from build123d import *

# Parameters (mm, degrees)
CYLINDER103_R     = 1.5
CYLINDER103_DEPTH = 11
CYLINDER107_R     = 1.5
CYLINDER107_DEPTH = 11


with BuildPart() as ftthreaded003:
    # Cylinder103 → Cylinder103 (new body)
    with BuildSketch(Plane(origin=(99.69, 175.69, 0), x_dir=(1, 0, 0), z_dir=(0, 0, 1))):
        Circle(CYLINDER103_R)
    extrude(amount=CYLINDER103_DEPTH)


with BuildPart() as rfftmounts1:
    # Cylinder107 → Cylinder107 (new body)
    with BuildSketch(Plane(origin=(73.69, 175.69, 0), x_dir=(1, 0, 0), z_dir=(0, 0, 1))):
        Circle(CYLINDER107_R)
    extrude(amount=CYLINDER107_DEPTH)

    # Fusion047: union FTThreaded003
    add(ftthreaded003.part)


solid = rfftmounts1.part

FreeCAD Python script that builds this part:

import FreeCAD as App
import Part
import Sketcher

doc = App.newDocument("Part")
body = doc.addObject("PartDesign::Body", "Body")

# Sketch on XY plane
sketch1 = body.newObject("Sketcher::SketchObject", "Sketch")
sketch1.AttachmentSupport = (doc.getObject("XY_Plane"), [""])
sketch1.MapMode = "FlatFace"
sketch1.addGeometry(Part.Circle(App.Vector(99.7, 175.7, 0), App.Vector(0, 0, 1), 1.5), False)
sketch1.addConstraint(Sketcher.Constraint("Diameter", 0, 3.0))
sketch1.addConstraint(Sketcher.Constraint("DistanceX", -1, 1, 0, 3, 99.69))
sketch1.addConstraint(Sketcher.Constraint("DistanceY", -1, 1, 0, 3, 175.69))
pad1 = body.newObject("PartDesign::Pad", "Pad")
pad1.Profile = sketch1
pad1.Length = 11
body2 = doc.addObject("PartDesign::Body", "Body001")
body2.AllowCompound = True

# Sketch on XY plane
sketch2 = body2.newObject("Sketcher::SketchObject", "Sketch001")
sketch2.AttachmentSupport = (doc.getObject("XY_Plane001"), [""])
sketch2.MapMode = "FlatFace"
sketch2.addGeometry(Part.Circle(App.Vector(73.7, 175.7, 0), App.Vector(0, 0, 1), 1.5), False)
sketch2.addConstraint(Sketcher.Constraint("Diameter", 0, 3.0))
sketch2.addConstraint(Sketcher.Constraint("DistanceX", -1, 1, 0, 3, 73.69))
sketch2.addConstraint(Sketcher.Constraint("DistanceY", -1, 1, 0, 3, 175.69))
pad2 = body2.newObject("PartDesign::Pad", "Pad001")
pad2.Profile = sketch2
pad2.Length = 11
doc.recompute()

boolean = body2.newObject("PartDesign::Boolean", "Boolean")
boolean.Type = "Fuse"
boolean.addObjects([body])

doc.recompute()
